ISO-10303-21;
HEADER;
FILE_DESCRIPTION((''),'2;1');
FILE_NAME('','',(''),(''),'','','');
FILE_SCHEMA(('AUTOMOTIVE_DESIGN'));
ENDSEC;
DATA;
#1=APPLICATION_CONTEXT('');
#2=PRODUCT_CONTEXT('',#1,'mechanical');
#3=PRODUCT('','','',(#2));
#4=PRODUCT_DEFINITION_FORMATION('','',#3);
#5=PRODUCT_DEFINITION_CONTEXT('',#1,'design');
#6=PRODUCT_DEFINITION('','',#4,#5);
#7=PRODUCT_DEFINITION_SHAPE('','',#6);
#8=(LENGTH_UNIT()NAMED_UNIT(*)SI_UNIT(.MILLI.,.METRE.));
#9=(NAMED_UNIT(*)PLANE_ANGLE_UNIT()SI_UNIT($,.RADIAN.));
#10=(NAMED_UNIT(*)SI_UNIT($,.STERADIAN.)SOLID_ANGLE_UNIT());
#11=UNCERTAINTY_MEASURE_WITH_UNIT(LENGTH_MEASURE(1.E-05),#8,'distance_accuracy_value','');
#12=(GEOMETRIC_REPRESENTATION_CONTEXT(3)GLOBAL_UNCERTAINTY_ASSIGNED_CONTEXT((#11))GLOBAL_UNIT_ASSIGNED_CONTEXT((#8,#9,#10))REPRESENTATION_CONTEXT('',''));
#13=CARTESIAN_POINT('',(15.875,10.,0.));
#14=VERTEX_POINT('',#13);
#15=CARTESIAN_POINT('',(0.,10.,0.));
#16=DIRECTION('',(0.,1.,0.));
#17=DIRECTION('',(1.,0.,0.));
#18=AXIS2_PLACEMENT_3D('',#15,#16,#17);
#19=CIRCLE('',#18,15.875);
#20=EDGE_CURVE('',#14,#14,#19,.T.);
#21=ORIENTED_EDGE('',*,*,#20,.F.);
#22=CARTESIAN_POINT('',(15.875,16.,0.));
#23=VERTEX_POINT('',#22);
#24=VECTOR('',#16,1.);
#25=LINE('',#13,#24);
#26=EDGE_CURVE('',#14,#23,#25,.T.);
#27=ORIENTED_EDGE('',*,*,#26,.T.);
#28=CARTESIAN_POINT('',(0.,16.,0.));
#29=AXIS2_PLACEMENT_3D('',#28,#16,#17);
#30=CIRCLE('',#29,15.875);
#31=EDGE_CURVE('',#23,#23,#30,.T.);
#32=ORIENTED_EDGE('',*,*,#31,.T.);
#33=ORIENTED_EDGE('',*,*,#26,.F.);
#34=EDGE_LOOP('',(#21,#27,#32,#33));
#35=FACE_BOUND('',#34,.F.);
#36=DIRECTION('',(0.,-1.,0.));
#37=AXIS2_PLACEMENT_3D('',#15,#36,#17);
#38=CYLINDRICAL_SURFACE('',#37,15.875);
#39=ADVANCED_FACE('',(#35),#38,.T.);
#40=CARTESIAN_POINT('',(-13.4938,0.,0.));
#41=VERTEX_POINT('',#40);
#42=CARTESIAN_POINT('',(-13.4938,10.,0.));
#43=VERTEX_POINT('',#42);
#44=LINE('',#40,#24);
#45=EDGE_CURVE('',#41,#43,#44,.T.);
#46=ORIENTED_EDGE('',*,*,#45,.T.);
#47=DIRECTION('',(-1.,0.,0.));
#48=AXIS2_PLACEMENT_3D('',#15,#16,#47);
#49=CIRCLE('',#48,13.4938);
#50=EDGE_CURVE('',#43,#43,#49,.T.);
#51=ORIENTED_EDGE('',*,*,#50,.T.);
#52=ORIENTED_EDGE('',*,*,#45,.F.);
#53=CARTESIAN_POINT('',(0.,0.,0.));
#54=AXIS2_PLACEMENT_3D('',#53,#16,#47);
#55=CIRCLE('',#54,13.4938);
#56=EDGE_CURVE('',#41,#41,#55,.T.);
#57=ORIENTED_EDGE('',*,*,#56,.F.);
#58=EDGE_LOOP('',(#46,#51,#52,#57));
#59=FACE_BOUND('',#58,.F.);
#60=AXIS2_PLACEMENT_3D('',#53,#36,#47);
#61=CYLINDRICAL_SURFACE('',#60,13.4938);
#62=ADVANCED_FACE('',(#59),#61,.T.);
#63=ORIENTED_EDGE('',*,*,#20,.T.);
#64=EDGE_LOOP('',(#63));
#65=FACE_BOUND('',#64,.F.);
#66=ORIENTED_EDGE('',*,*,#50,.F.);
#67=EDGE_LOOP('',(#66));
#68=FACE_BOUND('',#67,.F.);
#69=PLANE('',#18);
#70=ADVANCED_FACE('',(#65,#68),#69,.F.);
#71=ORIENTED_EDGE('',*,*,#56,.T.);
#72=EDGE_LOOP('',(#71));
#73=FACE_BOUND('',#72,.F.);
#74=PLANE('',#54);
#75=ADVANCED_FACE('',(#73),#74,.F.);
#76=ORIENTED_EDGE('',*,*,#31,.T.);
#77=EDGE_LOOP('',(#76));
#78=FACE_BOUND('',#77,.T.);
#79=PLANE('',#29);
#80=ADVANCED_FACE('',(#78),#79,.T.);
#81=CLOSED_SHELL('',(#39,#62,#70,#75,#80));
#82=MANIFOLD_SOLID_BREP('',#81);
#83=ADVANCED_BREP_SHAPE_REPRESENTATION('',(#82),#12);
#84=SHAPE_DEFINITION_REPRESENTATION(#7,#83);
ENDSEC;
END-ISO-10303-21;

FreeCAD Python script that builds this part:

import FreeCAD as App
import Part
import Sketcher
Q = App.Units.Quantity

doc = App.newDocument("Part")
body = doc.addObject("PartDesign::Body", "Body")

sketch1 = body.newObject("Sketcher::SketchObject", "Sketch")
sketch1.AttachmentSupport = (doc.getObject("XZ_Plane"), [""])
sketch1.MapMode = "FlatFace"
sketch1.addGeometry(Part.Circle(App.Vector(0, 0, 0), App.Vector(0, 0, 1), 13), False)
sketch1.addConstraint([
    Sketcher.Constraint("Coincident", 0, 3, -1, 1),
    Sketcher.Constraint("Diameter", 0, Q("1.0625 in")),
])
pad1 = body.newObject("PartDesign::Pad", "Pad")
pad1.Profile = sketch1
pad1.Length = Q("0.3937008 in")
pad1.Reversed = True

sketch2 = body.newObject("Sketcher::SketchObject", "Sketch001")
sketch2.AttachmentSupport = (doc.getObject("XZ_Plane"), [""])
sketch2.MapMode = "FlatFace"
sketch2.AttachmentOffset = App.Placement(App.Vector(0, 0, -0.3937008 * 25.4), App.Rotation())
sketch2.addGeometry(Part.Circle(App.Vector(0, 0, 0), App.Vector(0, 0, 1), 16), False)
sketch2.addConstraint([
    Sketcher.Constraint("Coincident", 0, 3, -1, 1),
    Sketcher.Constraint("Diameter", 0, Q("1.25 in")),
])
pad2 = body.newObject("PartDesign::Pad", "Pad001")
pad2.Profile = sketch2
pad2.Length = 6
pad2.Reversed = True

doc.recompute()
